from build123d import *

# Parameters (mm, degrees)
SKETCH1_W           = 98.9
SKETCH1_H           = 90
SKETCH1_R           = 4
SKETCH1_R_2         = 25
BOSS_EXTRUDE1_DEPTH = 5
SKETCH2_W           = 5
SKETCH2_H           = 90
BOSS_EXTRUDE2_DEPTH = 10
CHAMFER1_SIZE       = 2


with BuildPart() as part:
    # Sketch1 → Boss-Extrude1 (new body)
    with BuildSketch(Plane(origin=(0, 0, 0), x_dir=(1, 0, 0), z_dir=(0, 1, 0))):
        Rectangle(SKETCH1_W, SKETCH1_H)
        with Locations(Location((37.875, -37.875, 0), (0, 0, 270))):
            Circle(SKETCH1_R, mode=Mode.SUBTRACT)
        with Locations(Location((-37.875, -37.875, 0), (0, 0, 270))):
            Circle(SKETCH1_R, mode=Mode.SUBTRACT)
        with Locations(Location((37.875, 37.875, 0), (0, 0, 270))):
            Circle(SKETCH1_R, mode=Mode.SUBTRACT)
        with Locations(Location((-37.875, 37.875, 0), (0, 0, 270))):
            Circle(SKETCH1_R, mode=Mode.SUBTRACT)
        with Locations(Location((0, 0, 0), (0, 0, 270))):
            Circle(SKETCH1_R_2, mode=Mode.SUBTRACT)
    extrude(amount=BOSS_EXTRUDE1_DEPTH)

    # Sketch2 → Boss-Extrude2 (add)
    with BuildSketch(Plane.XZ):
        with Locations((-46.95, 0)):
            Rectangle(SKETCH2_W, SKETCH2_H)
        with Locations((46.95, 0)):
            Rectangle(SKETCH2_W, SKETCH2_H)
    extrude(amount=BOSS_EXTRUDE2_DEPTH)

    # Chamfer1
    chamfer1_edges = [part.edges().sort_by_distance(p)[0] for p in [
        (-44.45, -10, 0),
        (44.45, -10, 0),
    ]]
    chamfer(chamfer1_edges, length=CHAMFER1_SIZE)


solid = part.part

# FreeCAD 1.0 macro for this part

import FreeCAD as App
import Part
import Sketcher

V = App.Vector
Q = App.Units.Quantity


def edges_at(feature, points):
    """Names of the edges that pass closest to the given points."""
    edges = feature.Shape.Edges
    near = lambda p: min(range(len(edges)), key=lambda i: edges[i].distToShape(Part.Vertex(*p))[0])
    return sorted({f"Edge{near(p) + 1}" for p in points})

doc = App.newDocument("Part")
body = doc.addObject("PartDesign::Body", "Body")

sketch1 = doc.addObject("Sketcher::SketchObject", "Sketch")
body.addObject(sketch1)
sketch1.AttachmentSupport = (doc.XZ_Plane, [""])
sketch1.MapMode = "FlatFace"
sketch1.addGeometry([
    Part.LineSegment(V(-49.45, -45, 0), V(-49.45, 45, 0)),
    Part.LineSegment(V(-49.45, 45, 0), V(49.45, 45, 0)),
    Part.LineSegment(V(49.45, 45, 0), V(49.45, -45, 0)),
    Part.LineSegment(V(49.45, -45, 0), V(-49.45, -45, 0)),
    Part.Circle(V(-37.875, 37.875, 0), V(0, 0, 1), 4),
    Part.Circle(V(37.875, 37.875, 0), V(0, 0, 1), 4),
    Part.Circle(V(-37.875, -37.875, 0), V(0, 0, 1), 4),
    Part.Circle(V(0, 0, 0), V(0, 0, 1), 25),
    Part.Circle(V(37.875, -37.875, 0), V(0, 0, 1), 4),
], False)
sketch1.addConstraint([
    Sketcher.Constraint("Coincident", 0, 2, 1, 1),
    Sketcher.Constraint("Coincident", 1, 2, 2, 1),
    Sketcher.Constraint("Coincident", 2, 2, 3, 1),
    Sketcher.Constraint("Coincident", 3, 2, 0, 1),
    Sketcher.Constraint("Vertical", 0),
    Sketcher.Constraint("Horizontal", 1),
    Sketcher.Constraint("Vertical", 2),
    Sketcher.Constraint("Horizontal", 3),
    Sketcher.Constraint("Coincident", 7, 3, -1, 1),
    Sketcher.Constraint("Equal", 4, 5),
    Sketcher.Constraint("Equal", 5, 6),
    Sketcher.Constraint("Equal", 6, 8),
    Sketcher.Constraint("Symmetric", 5, 3, 6, 3, -1, 1),
    Sketcher.Constraint("Symmetric", 4, 3, 8, 3, -1, 1),
    Sketcher.Constraint("Symmetric", 0, 2, 2, 2, -1, 1),
    Sketcher.Constraint("Symmetric", 4, 3, 5, 3, -2),
    Sketcher.Constraint("Diameter", 4, Q("8 mm")),
    Sketcher.Constraint("Diameter", 7, Q("50 mm")),
    Sketcher.Constraint("DistanceY", 0, 1, 0, 2, Q("90 mm")),
    Sketcher.Constraint("DistanceX", 1, 1, 1, 2, Q("98.9 mm")),
    Sketcher.Constraint("DistanceX", 4, 3, 5, 3, Q("75.75 mm")),
    Sketcher.Constraint("DistanceY", 6, 3, 4, 3, Q("75.75 mm")),
])
pad1 = doc.addObject("PartDesign::Pad", "Pad")
body.addObject(pad1)
pad1.Profile = sketch1
pad1.Length = 5
pad1.Reversed = True

sketch2 = doc.addObject("Sketcher::SketchObject", "Sketch001")
body.addObject(sketch2)
sketch2.AttachmentSupport = (doc.XZ_Plane, [""])
sketch2.MapMode = "FlatFace"
sketch2.addGeometry([
    Part.LineSegment(V(-49.45, 45, 0), V(-49.45, -45, 0)),
    Part.LineSegment(V(-49.45, -45, 0), V(-44.45, -45, 0)),
    Part.LineSegment(V(-44.45, -45, 0), V(-44.45, 45, 0)),
    Part.LineSegment(V(-44.45, 45, 0), V(-49.45, 45, 0)),
    Part.LineSegment(V(44.45, 45, 0), V(44.45, -45, 0)),
    Part.LineSegment(V(44.45, -45, 0), V(49.45, -45, 0)),
    Part.LineSegment(V(49.45, -45, 0), V(49.45, 45, 0)),
    Part.LineSegment(V(49.45, 45, 0), V(44.45, 45, 0)),
], False)
sketch2.addConstraint([
    Sketcher.Constraint("Coincident", 0, 2, 1, 1),
    Sketcher.Constraint("Coincident", 1, 2, 2, 1),
    Sketcher.Constraint("Coincident", 2, 2, 3, 1),
    Sketcher.Constraint("Coincident", 3, 2, 0, 1),
    Sketcher.Constraint("Coincident", 4, 2, 5, 1),
    Sketcher.Constraint("Coincident", 5, 2, 6, 1),
    Sketcher.Constraint("Coincident", 6, 2, 7, 1),
    Sketcher.Constraint("Coincident", 7, 2, 4, 1),
    Sketcher.Constraint("Vertical", 0),
    Sketcher.Constraint("Horizontal", 1),
    Sketcher.Constraint("Vertical", 2),
    Sketcher.Constraint("Horizontal", 3),
    Sketcher.Constraint("Vertical", 4),
    Sketcher.Constraint("Horizontal", 5),
    Sketcher.Constraint("Vertical", 6),
    Sketcher.Constraint("Horizontal", 7),
    Sketcher.Constraint("Symmetric", 2, 2, 4, 2, -1, 1),
    Sketcher.Constraint("Symmetric", 0, 2, 6, 2, -1, 1),
    Sketcher.Constraint("Horizontal", 1, 2, 4, 2),
    Sketcher.Constraint("DistanceX", 1, 1, 1, 2, Q("5 mm")),
    Sketcher.Constraint("DistanceY", 0, 2, 0, 1, Q("90 mm")),
    Sketcher.Constraint("DistanceX", 1, 2, 4, 2, Q("88.9 mm")),
])
pad2 = doc.addObject("PartDesign::Pad", "Pad001")
body.addObject(pad2)
pad2.Profile = sketch2
pad2.Length = 10
doc.recompute()

chamfer = doc.addObject("PartDesign::Chamfer", "Chamfer")
body.addObject(chamfer)
chamfer.Base = (pad2, edges_at(pad2, [(-44.45, -10, 0), (44.45, -10, 0)]))
chamfer.Size = 2

doc.recompute()
